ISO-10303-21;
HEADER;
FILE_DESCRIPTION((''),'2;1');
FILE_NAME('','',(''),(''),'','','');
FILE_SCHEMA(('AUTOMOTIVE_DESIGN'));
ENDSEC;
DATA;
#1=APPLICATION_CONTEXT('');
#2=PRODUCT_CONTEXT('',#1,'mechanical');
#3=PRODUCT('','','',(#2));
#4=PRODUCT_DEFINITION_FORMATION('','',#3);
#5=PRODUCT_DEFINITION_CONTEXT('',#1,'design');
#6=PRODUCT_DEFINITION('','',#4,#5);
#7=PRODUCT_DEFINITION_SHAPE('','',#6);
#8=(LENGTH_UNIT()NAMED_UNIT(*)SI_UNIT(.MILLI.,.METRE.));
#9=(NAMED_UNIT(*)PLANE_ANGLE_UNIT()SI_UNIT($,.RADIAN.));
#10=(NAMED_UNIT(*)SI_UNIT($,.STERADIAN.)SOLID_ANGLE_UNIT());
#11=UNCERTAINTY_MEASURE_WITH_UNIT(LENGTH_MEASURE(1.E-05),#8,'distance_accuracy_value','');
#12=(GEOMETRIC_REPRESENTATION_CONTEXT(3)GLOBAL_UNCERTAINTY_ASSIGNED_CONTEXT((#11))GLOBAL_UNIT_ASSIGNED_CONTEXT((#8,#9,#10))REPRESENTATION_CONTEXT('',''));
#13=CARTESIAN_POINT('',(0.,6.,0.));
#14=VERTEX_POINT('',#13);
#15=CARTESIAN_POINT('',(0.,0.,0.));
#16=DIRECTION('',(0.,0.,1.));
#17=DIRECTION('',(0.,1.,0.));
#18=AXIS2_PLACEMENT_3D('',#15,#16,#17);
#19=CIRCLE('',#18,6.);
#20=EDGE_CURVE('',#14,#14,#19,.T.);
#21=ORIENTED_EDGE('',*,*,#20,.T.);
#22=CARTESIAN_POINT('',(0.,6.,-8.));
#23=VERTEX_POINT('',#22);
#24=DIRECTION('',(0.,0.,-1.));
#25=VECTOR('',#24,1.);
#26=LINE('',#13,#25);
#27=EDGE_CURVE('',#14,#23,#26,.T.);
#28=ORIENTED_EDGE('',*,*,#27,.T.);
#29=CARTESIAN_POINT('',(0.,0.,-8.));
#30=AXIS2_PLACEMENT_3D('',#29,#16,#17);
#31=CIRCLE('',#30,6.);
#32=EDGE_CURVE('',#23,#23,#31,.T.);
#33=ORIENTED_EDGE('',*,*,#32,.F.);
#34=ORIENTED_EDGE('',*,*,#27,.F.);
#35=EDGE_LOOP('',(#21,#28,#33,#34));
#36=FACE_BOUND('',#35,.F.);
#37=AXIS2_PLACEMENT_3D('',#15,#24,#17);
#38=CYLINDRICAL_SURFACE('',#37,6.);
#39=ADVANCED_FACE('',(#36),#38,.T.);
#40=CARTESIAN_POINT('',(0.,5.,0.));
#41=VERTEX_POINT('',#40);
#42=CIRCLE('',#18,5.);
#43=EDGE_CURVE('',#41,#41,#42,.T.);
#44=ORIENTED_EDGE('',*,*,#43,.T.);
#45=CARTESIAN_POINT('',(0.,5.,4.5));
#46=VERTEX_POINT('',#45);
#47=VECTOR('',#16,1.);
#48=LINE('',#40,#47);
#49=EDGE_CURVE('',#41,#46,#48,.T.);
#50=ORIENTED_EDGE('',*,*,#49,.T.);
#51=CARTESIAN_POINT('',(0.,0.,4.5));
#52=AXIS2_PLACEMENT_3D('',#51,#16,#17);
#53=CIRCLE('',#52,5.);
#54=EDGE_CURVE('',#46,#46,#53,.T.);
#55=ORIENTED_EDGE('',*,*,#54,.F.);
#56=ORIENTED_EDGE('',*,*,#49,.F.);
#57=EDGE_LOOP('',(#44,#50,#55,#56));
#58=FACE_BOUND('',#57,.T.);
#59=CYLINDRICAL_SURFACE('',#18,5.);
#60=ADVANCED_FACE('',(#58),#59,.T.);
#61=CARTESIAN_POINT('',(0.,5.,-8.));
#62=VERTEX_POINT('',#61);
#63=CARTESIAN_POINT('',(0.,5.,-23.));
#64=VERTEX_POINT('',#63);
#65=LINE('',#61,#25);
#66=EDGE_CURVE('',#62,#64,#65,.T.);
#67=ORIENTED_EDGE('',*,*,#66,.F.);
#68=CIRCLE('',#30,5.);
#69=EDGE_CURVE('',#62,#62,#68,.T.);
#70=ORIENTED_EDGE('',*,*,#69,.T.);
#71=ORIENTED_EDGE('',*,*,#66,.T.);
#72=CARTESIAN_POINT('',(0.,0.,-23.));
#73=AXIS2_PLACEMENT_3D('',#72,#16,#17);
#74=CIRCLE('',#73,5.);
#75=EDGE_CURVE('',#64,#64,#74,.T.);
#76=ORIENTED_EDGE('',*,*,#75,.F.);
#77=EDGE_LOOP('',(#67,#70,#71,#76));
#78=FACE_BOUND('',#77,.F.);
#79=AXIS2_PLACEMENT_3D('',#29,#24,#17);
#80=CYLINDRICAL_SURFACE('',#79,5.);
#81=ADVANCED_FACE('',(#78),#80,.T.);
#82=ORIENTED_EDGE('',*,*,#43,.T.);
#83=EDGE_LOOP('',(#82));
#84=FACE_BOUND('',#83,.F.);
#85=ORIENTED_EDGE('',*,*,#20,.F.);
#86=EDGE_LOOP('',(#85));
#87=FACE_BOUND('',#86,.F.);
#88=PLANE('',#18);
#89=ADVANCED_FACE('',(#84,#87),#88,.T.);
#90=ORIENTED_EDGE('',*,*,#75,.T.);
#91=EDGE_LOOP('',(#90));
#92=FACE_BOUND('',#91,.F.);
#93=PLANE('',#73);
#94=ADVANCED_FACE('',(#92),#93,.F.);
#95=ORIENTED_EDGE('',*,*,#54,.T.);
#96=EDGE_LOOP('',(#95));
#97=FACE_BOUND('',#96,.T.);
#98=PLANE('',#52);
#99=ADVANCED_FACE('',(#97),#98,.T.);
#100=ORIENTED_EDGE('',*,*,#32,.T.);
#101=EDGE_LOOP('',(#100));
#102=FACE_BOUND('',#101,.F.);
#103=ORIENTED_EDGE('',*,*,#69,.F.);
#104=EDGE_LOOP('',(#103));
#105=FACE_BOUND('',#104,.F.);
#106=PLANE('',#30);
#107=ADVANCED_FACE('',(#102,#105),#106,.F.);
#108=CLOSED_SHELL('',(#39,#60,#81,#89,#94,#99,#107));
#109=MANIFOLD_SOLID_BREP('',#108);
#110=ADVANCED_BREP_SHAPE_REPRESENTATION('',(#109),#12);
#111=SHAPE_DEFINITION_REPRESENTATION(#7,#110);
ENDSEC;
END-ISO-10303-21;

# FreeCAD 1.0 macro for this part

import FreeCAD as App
import Part
import Sketcher
from FreeCAD import Vector


def add_polygon(sketch, points):
    """Adds a closed chain of lines whose ends are joined by coincident constraints."""
    first, n = sketch.GeometryCount, len(points)
    for a, b in zip(points, points[1:] + points[:1]):
        sketch.addGeometry(Part.LineSegment(App.Vector(*a, 0), App.Vector(*b, 0)), False)
    for i in range(n):
        sketch.addConstraint(Sketcher.Constraint("Coincident", first + i, 2, first + (i + 1) % n, 1))

doc = App.newDocument("Part")
params = doc.addObject("Spreadsheet::Sheet", "Params")
for row, (alias, value) in enumerate([
    ("sketch1_width", "5 mm"),
    ("sketch1_height", "15 mm"),
    ("sketch1_height2", "8 mm"),
    ("sketch1_height3", "4.5 mm"),
    ("revolution_angle", "360 deg"),
], start=1):
    params.set(f"A{row}", alias)
    params.set(f"B{row}", "=" + value)
    params.setAlias(f"B{row}", alias)

body = doc.addObject("PartDesign::Body", "Body")

# Sketch on YZ plane
sketch1 = doc.addObject("Sketcher::SketchObject", "Sketch")
body.addObject(sketch1)
sketch1.AttachmentSupport = (doc.YZ_Plane, [""])
sketch1.MapMode = "FlatFace"
add_polygon(sketch1, [(0, 4.5), (0, -23), (5, -23), (5, -8), (6, -8), (6, 0), (5, 0), (5, 4.5)])  # lines 0-7
sketch1.addConstraint([
    Sketcher.Constraint("Vertical", 0),
    Sketcher.Constraint("Horizontal", 1),
    Sketcher.Constraint("Vertical", 2),
    Sketcher.Constraint("Horizontal", 3),
    Sketcher.Constraint("Vertical", 4),
    Sketcher.Constraint("Horizontal", 5),
    Sketcher.Constraint("Vertical", 6),
    Sketcher.Constraint("Horizontal", 7),
    Sketcher.Constraint("PointOnObject", 0, 2, -2),
    Sketcher.Constraint("PointOnObject", 4, 2, -1),
    Sketcher.Constraint("Vertical", 2, 2, 5, 2),
    Sketcher.Constraint("DistanceX", 1, 1, 1, 2, 5.0),
    Sketcher.Constraint("DistanceY", 2, 1, 2, 2, 15.0),
    Sketcher.Constraint("DistanceY", 4, 1, 4, 2, 8.0),
    Sketcher.Constraint("DistanceY", 6, 1, 6, 2, 4.5),
    Sketcher.Constraint("DistanceX", -1, 1, 3, 2, 6.0),
])
sketch1.setExpression("Constraints[19]", "Params.sketch1_width")
sketch1.setExpression("Constraints[20]", "Params.sketch1_height")
sketch1.setExpression("Constraints[21]", "Params.sketch1_height2")
sketch1.setExpression("Constraints[22]", "Params.sketch1_height3")
revolution = doc.addObject("PartDesign::Revolution", "Revolution")
body.addObject(revolution)
revolution.Profile = sketch1
revolution.ReferenceAxis = (sketch1, ["V_Axis"])
revolution.setExpression("Angle", "Params.revolution_angle")

doc.recompute()
